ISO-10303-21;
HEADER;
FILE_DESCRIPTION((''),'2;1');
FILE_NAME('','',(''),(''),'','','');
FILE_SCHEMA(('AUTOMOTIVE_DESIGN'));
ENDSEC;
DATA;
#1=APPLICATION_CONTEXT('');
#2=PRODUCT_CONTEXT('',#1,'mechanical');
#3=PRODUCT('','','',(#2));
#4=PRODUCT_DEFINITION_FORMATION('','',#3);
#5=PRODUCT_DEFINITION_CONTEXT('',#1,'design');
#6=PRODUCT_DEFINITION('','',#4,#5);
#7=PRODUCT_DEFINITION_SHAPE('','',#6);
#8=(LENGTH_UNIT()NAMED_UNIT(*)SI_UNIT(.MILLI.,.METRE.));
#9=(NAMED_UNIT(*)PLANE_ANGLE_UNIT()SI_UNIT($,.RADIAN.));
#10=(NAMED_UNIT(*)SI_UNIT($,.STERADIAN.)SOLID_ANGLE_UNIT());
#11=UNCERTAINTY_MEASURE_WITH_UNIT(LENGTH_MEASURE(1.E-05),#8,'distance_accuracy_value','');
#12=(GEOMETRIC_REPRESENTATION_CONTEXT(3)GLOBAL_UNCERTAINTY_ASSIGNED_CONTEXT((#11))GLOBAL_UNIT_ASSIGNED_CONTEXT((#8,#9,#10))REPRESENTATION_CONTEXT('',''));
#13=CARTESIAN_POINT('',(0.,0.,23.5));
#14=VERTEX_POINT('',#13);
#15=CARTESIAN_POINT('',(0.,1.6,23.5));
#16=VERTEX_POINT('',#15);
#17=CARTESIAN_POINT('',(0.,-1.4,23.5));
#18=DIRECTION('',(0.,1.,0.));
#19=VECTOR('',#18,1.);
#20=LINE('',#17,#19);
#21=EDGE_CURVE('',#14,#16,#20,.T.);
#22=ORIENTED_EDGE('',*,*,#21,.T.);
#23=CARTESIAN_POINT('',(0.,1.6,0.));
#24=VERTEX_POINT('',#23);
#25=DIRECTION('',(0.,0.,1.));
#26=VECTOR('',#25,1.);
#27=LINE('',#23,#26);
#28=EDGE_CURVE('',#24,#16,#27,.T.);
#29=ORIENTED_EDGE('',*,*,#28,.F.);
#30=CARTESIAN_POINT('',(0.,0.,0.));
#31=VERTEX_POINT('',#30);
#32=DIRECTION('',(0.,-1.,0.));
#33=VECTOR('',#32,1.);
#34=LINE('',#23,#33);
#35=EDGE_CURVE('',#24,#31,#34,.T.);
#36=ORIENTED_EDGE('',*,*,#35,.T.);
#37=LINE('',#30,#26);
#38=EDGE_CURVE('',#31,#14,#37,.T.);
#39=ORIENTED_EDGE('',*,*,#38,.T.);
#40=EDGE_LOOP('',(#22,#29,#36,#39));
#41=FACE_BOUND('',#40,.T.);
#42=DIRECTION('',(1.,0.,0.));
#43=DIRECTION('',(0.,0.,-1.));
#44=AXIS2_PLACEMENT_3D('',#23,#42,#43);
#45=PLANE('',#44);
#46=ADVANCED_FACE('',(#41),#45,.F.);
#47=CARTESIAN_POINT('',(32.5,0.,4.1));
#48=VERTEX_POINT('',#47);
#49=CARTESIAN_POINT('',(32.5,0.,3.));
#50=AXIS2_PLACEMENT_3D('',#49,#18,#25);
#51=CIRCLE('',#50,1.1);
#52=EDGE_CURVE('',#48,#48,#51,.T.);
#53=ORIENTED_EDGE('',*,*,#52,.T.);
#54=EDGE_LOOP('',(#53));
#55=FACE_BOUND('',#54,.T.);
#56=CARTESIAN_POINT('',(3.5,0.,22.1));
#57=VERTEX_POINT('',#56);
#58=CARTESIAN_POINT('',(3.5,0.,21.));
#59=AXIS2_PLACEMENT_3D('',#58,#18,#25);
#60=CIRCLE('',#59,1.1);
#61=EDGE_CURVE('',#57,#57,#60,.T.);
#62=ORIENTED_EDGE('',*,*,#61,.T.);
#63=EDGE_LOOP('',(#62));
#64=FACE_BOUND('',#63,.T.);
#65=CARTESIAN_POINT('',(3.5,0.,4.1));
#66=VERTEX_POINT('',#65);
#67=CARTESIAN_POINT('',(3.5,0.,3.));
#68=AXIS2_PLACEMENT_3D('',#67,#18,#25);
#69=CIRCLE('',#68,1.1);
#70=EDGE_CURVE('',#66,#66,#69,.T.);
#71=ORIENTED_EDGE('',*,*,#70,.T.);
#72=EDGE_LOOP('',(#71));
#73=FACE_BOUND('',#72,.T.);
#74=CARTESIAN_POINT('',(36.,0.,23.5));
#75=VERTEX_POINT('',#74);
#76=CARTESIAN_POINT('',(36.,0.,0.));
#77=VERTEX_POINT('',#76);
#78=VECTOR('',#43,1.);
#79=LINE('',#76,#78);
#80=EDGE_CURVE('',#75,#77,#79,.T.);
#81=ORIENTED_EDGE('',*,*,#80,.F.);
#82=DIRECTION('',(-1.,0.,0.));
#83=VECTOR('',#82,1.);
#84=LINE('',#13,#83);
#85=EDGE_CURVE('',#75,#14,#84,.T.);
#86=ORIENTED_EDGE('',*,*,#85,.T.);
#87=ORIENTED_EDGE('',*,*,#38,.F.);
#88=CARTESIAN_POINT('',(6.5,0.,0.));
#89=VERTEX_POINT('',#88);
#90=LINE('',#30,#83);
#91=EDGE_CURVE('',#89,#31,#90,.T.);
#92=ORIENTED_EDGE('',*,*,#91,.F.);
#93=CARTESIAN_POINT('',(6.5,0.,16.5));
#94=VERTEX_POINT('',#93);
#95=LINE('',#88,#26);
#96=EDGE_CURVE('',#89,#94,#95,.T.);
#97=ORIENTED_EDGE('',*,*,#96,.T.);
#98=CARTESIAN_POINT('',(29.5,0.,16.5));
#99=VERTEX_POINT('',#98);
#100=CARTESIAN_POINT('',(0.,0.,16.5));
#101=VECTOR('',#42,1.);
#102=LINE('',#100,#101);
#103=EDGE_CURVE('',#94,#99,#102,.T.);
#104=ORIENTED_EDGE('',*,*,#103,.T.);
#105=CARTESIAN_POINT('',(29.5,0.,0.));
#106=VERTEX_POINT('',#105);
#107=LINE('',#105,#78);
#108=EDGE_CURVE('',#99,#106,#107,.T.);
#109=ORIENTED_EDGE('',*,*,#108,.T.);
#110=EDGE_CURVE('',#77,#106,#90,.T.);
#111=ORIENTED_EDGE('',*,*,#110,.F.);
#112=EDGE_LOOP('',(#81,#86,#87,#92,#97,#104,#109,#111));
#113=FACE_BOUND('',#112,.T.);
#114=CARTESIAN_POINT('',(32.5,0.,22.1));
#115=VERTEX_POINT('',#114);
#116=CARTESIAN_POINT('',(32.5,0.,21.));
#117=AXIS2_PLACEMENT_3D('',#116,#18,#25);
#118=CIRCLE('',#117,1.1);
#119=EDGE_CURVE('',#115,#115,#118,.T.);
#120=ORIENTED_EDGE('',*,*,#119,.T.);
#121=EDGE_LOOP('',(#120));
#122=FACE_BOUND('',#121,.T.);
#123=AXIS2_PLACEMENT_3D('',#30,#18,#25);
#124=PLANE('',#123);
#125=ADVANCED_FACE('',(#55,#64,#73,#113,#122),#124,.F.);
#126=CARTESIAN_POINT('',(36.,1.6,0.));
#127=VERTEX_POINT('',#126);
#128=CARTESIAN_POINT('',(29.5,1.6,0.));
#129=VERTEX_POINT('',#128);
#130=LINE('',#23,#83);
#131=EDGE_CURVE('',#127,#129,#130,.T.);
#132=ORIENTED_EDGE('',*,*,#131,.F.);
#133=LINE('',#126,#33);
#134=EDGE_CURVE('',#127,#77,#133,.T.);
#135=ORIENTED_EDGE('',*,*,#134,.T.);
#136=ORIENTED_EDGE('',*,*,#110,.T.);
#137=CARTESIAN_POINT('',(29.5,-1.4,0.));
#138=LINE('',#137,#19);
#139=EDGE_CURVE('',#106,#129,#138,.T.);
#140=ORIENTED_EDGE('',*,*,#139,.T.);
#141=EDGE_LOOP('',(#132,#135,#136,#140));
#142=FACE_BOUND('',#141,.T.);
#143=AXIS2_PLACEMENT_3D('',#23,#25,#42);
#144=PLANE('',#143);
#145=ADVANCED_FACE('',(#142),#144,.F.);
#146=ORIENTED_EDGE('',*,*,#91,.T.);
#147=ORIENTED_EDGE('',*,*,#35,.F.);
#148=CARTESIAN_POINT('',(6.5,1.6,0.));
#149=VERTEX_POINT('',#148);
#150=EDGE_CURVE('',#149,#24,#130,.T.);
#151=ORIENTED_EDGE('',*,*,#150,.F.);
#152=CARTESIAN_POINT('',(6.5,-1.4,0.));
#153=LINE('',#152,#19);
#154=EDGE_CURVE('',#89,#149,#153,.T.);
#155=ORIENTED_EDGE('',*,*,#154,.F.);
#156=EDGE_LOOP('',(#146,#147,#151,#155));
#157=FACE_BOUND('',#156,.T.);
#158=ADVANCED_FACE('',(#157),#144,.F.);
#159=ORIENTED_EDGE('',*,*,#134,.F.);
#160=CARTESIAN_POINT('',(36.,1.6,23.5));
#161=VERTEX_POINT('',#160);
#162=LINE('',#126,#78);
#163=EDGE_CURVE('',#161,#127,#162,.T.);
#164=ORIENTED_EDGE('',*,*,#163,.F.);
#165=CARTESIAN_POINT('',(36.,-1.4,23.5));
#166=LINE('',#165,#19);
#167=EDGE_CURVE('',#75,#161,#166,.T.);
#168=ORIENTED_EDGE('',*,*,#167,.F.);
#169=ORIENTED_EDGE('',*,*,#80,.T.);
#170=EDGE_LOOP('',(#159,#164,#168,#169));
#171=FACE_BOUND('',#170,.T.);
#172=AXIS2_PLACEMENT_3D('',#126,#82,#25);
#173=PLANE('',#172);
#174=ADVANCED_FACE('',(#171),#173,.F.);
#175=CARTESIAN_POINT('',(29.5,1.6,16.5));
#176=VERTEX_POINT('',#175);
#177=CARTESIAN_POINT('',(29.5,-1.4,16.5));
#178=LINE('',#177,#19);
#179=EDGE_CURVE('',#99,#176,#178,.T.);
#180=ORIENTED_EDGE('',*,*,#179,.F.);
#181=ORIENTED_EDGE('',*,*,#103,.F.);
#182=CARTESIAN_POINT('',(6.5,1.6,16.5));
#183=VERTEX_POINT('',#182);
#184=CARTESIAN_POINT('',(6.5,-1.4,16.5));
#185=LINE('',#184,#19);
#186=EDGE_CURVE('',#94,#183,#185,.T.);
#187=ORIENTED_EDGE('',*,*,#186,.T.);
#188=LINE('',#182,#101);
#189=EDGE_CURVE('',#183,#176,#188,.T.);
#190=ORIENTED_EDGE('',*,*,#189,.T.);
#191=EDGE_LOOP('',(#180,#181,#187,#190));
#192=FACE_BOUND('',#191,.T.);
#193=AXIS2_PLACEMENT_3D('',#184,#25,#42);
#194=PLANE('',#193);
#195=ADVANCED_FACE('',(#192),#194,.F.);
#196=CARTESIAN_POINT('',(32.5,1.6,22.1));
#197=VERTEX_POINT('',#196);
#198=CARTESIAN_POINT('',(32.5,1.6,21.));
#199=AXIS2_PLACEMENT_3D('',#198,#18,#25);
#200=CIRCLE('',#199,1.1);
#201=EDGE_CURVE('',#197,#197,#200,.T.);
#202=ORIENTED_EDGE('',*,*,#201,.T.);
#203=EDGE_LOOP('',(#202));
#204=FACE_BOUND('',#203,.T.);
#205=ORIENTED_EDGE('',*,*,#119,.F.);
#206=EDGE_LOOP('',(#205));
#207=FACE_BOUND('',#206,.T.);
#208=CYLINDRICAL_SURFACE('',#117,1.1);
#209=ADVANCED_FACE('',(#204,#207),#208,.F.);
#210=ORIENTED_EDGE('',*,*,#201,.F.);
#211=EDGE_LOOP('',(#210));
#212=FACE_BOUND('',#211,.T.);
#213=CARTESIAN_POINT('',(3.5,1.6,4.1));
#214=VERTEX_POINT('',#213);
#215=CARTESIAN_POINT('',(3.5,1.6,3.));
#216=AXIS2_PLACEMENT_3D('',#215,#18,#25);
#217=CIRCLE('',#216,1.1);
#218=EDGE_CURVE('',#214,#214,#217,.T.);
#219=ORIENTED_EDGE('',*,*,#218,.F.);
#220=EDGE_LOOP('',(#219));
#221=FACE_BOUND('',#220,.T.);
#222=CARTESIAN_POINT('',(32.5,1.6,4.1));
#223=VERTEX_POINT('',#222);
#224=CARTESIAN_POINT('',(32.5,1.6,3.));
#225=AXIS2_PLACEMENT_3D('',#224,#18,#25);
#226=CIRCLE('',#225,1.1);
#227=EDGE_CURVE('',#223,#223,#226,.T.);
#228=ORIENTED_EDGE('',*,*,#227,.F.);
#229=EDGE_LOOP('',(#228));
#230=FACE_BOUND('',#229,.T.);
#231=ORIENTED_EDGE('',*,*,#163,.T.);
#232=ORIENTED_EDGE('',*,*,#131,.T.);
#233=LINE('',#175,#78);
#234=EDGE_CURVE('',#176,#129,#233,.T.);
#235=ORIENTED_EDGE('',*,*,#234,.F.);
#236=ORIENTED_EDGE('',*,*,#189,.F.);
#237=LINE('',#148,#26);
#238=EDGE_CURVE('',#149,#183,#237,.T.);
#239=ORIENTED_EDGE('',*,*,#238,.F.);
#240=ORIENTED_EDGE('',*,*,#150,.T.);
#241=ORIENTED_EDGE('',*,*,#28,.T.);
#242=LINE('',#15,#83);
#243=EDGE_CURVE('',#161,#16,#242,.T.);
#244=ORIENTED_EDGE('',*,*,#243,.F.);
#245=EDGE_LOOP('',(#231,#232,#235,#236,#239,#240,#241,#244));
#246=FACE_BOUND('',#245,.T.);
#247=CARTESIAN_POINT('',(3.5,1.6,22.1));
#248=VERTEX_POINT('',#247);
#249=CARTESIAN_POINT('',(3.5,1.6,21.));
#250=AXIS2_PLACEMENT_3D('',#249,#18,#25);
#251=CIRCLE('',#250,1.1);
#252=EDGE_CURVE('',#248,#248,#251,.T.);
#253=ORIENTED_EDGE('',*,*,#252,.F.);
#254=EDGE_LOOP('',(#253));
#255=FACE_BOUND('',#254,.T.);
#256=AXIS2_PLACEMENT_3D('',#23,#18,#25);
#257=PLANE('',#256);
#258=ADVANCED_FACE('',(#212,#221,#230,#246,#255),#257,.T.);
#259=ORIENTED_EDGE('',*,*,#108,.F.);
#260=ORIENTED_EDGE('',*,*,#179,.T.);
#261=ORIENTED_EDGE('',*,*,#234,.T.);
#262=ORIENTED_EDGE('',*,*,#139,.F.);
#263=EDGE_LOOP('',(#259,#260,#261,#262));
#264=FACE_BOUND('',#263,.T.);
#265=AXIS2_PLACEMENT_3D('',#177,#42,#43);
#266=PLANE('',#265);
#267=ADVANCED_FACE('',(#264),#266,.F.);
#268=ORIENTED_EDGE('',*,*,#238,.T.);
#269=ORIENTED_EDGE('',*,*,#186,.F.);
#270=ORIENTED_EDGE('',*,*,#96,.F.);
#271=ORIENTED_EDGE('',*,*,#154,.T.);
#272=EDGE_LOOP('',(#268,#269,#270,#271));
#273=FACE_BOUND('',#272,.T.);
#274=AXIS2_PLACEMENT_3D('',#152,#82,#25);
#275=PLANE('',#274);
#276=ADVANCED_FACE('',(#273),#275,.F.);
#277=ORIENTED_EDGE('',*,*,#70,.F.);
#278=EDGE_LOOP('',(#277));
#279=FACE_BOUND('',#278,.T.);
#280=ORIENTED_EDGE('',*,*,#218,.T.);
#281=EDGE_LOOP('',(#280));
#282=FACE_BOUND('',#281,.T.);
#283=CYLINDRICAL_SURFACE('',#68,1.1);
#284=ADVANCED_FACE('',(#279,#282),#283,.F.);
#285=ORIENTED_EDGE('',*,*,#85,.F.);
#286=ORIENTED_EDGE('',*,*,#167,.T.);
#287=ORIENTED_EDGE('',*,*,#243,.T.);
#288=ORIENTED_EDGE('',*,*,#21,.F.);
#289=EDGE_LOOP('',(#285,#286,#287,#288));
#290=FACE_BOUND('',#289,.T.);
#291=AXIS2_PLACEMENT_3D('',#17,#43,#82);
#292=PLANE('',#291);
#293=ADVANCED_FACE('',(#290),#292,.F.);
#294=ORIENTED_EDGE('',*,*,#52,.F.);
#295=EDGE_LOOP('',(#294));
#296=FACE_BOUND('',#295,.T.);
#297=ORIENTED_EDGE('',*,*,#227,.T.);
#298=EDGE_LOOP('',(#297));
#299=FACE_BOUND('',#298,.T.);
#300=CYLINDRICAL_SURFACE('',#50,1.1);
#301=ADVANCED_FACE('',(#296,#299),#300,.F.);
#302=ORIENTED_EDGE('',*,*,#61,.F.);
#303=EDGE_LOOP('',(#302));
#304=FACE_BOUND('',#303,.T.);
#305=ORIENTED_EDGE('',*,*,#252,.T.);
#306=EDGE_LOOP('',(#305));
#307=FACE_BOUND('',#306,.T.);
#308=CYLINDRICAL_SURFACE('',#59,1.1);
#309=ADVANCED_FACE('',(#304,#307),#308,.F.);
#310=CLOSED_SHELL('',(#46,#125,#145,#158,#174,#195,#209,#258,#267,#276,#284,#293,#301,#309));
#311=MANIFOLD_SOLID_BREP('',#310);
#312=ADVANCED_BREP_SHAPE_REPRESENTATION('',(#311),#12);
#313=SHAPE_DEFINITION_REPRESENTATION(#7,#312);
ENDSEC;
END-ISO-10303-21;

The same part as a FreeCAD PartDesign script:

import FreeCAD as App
import Part
import Sketcher
Q = App.Units.Quantity

doc = App.newDocument("Part")
body = doc.addObject("PartDesign::Body", "Body")

sketch1 = body.newObject("Sketcher::SketchObject", "Sketch")
sketch1.AttachmentSupport = (doc.getObject("XZ_Plane"), [""])
sketch1.MapMode = "FlatFace"
sketch1.addGeometry(Part.LineSegment(App.Vector(0, 0, 0), App.Vector(0, 24, 0)), False)
sketch1.addGeometry(Part.LineSegment(App.Vector(0, 24, 0), App.Vector(36, 24, 0)), False)
sketch1.addGeometry(Part.LineSegment(App.Vector(36, 24, 0), App.Vector(36, 0, 0)), False)
sketch1.addGeometry(Part.LineSegment(App.Vector(36, 0, 0), App.Vector(0, 0, 0)), False)
sketch1.addConstraint(Sketcher.Constraint("Coincident", 0, 2, 1, 1))
sketch1.addConstraint(Sketcher.Constraint("Coincident", 1, 2, 2, 1))
sketch1.addConstraint(Sketcher.Constraint("Coincident", 2, 2, 3, 1))
sketch1.addConstraint(Sketcher.Constraint("Coincident", 3, 2, 0, 1))
sketch1.addConstraint(Sketcher.Constraint("Vertical", 0))
sketch1.addConstraint(Sketcher.Constraint("Horizontal", 1))
sketch1.addConstraint(Sketcher.Constraint("Vertical", 2))
sketch1.addConstraint(Sketcher.Constraint("Horizontal", 3))
sketch1.addConstraint(Sketcher.Constraint("Coincident", 3, 2, -1, 1))
sketch1.addConstraint(Sketcher.Constraint("DistanceX", 1, 1, 1, 2, Q("36 mm")))
sketch1.addConstraint(Sketcher.Constraint("DistanceY", 0, 1, 0, 2, Q("24 mm")))
pad1 = body.newObject("PartDesign::Pad", "Pad")
pad1.Profile = sketch1
pad1.Length = 1.6
pad1.Reversed = True

sketch2 = body.newObject("Sketcher::SketchObject", "Sketch001")
sketch2.AttachmentSupport = (doc.getObject("XZ_Plane"), [""])
sketch2.MapMode = "FlatFace"
sketch2.AttachmentOffset = App.Placement(App.Vector(0, 0, -1.6), App.Rotation())
sketch2.addGeometry(Part.LineSegment(App.Vector(7, 0, 0), App.Vector(7, 16, 0)), False)
sketch2.addGeometry(Part.LineSegment(App.Vector(7, 16, 0), App.Vector(29, 16, 0)), False)
sketch2.addGeometry(Part.LineSegment(App.Vector(29, 16, 0), App.Vector(29, 0, 0)), False)
sketch2.addGeometry(Part.LineSegment(App.Vector(29, 0, 0), App.Vector(7, 0, 0)), False)
sketch2.addConstraint(Sketcher.Constraint("Coincident", 0, 2, 1, 1))
sketch2.addConstraint(Sketcher.Constraint("Coincident", 1, 2, 2, 1))
sketch2.addConstraint(Sketcher.Constraint("Coincident", 2, 2, 3, 1))
sketch2.addConstraint(Sketcher.Constraint("Coincident", 3, 2, 0, 1))
sketch2.addConstraint(Sketcher.Constraint("Vertical", 0))
sketch2.addConstraint(Sketcher.Constraint("Horizontal", 1))
sketch2.addConstraint(Sketcher.Constraint("Vertical", 2))
sketch2.addConstraint(Sketcher.Constraint("Horizontal", 3))
sketch2.addConstraint(Sketcher.Constraint("PointOnObject", 2, 2, -1))
sketch2.addConstraint(Sketcher.Constraint("DistanceX", 1, 1, 1, 2, Q("22 mm")))
sketch2.addConstraint(Sketcher.Constraint("DistanceY", 0, 1, 0, 2, Q("16 mm")))
sketch2.addConstraint(Sketcher.Constraint("DistanceX", -1, 1, 0, 2, Q("7 mm")))
pocket1 = body.newObject("PartDesign::Pocket", "Pocket")
pocket1.Profile = sketch2
pocket1.Length = 1.6
pocket1.Reversed = True

sketch3 = body.newObject("Sketcher::SketchObject", "Sketch002")
sketch3.AttachmentSupport = (doc.getObject("XZ_Plane"), [""])
sketch3.MapMode = "FlatFace"
sketch3.AttachmentOffset = App.Placement(App.Vector(0, 0, -1.6), App.Rotation())
sketch3.addGeometry(Part.Circle(App.Vector(3.5, 3, 0), App.Vector(0, 0, 1), 1.1), False)
sketch3.addGeometry(Part.Circle(App.Vector(32.5, 3, 0), App.Vector(0, 0, 1), 1.1), False)
sketch3.addGeometry(Part.Circle(App.Vector(3.5, 21, 0), App.Vector(0, 0, 1), 1.1), False)
sketch3.addGeometry(Part.Circle(App.Vector(32.5, 21, 0), App.Vector(0, 0, 1), 1.1), False)
sketch3.addConstraint(Sketcher.Constraint("Equal", 0, 1))
sketch3.addConstraint(Sketcher.Constraint("Equal", 1, 2))
sketch3.addConstraint(Sketcher.Constraint("Equal", 2, 3))
sketch3.addConstraint(Sketcher.Constraint("Horizontal", 0, 3, 1, 3))
sketch3.addConstraint(Sketcher.Constraint("Horizontal", 2, 3, 3, 3))
sketch3.addConstraint(Sketcher.Constraint("Vertical", 0, 3, 2, 3))
sketch3.addConstraint(Sketcher.Constraint("Vertical", 1, 3, 3, 3))
sketch3.addConstraint(Sketcher.Constraint("Diameter", 0, Q("2.2 mm")))
sketch3.addConstraint(Sketcher.Constraint("DistanceY", -1, 1, 0, 3, Q("3 mm")))
sketch3.addConstraint(Sketcher.Constraint("DistanceY", -1, 1, 2, 3, Q("21 mm")))
sketch3.addConstraint(Sketcher.Constraint("DistanceX", 0, 3, 1, 3, Q("29 mm")))
sketch3.addConstraint(Sketcher.Constraint("DistanceX", -1, 1, 0, 3, Q("3.5 mm")))
pocket2 = body.newObject("PartDesign::Pocket", "Pocket001")
pocket2.Profile = sketch3
pocket2.Length = 1.6
pocket2.Reversed = True

sketch4 = body.newObject("Sketcher::SketchObject", "Sketch003")
sketch4.AttachmentSupport = (doc.getObject("XZ_Plane"), [""])
sketch4.MapMode = "FlatFace"
sketch4.AttachmentOffset = App.Placement(App.Vector(0, 0, -1.6), App.Rotation())
sketch4.addGeometry(Part.LineSegment(App.Vector(7, 0, 0), App.Vector(6.5, 0, 0)), False)
sketch4.addGeometry(Part.LineSegment(App.Vector(6.5, 0, 0), App.Vector(6.5, 16.5, 0)), False)
sketch4.addGeometry(Part.LineSegment(App.Vector(6.5, 16.5, 0), App.Vector(29.5, 16.5, 0)), False)
sketch4.addGeometry(Part.LineSegment(App.Vector(29.5, 16.5, 0), App.Vector(29.5, 0, 0)), False)
sketch4.addGeometry(Part.LineSegment(App.Vector(29.5, 0, 0), App.Vector(29, 0, 0)), False)
sketch4.addGeometry(Part.LineSegment(App.Vector(29, 0, 0), App.Vector(29, 16, 0)), False)
sketch4.addGeometry(Part.LineSegment(App.Vector(29, 16, 0), App.Vector(7, 16, 0)), False)
sketch4.addGeometry(Part.LineSegment(App.Vector(7, 16, 0), App.Vector(7, 0, 0)), False)
sketch4.addConstraint(Sketcher.Constraint("Coincident", 0, 2, 1, 1))
sketch4.addConstraint(Sketcher.Constraint("Coincident", 1, 2, 2, 1))
sketch4.addConstraint(Sketcher.Constraint("Coincident", 2, 2, 3, 1))
sketch4.addConstraint(Sketcher.Constraint("Coincident", 3, 2, 4, 1))
sketch4.addConstraint(Sketcher.Constraint("Coincident", 4, 2, 5, 1))
sketch4.addConstraint(Sketcher.Constraint("Coincident", 5, 2, 6, 1))
sketch4.addConstraint(Sketcher.Constraint("Coincident", 6, 2, 7, 1))
sketch4.addConstraint(Sketcher.Constraint("Coincident", 7, 2, 0, 1))
sketch4.addConstraint(Sketcher.Constraint("Horizontal", 0))
sketch4.addConstraint(Sketcher.Constraint("Vertical", 1))
sketch4.addConstraint(Sketcher.Constraint("Horizontal", 2))
sketch4.addConstraint(Sketcher.Constraint("Vertical", 3))
sketch4.addConstraint(Sketcher.Constraint("Horizontal", 4))
sketch4.addConstraint(Sketcher.Constraint("Vertical", 5))
sketch4.addConstraint(Sketcher.Constraint("Horizontal", 6))
sketch4.addConstraint(Sketcher.Constraint("Vertical", 7))
sketch4.addConstraint(Sketcher.Constraint("PointOnObject", 0, 2, -1))
sketch4.addConstraint(Sketcher.Constraint("PointOnObject", 3, 2, -1))
sketch4.addConstraint(Sketcher.Constraint("Equal", 0, 4))
sketch4.addConstraint(Sketcher.Constraint("DistanceX", 2, 1, 2, 2, Q("23 mm")))
sketch4.addConstraint(Sketcher.Constraint("DistanceX", 6, 2, 6, 1, Q("22 mm")))
sketch4.addConstraint(Sketcher.Constraint("DistanceY", 5, 1, 5, 2, Q("16 mm")))
sketch4.addConstraint(Sketcher.Constraint("DistanceY", 1, 1, 1, 2, Q("16.5 mm")))
sketch4.addConstraint(Sketcher.Constraint("DistanceX", -1, 1, 4, 2, Q("29 mm")))
pocket3 = body.newObject("PartDesign::Pocket", "Pocket002")
pocket3.Profile = sketch4
pocket3.Length = 3
pocket3.Reversed = True

sketch5 = body.newObject("Sketcher::SketchObject", "Sketch004")
sketch5.AttachmentSupport = (doc.getObject("XZ_Plane"), [""])
sketch5.MapMode = "FlatFace"
sketch5.AttachmentOffset = App.Placement(App.Vector(0, 0, -1.6), App.Rotation())
sketch5.addGeometry(Part.LineSegment(App.Vector(0, 23.5, 0), App.Vector(0, 24, 0)), False)
sketch5.addGeometry(Part.LineSegment(App.Vector(0, 24, 0), App.Vector(36, 24, 0)), False)
sketch5.addGeometry(Part.LineSegment(App.Vector(36, 24, 0), App.Vector(36, 23.5, 0)), False)
sketch5.addGeometry(Part.LineSegment(App.Vector(36, 23.5, 0), App.Vector(0, 23.5, 0)), False)
sketch5.addConstraint(Sketcher.Constraint("Coincident", 0, 2, 1, 1))
sketch5.addConstraint(Sketcher.Constraint("Coincident", 1, 2, 2, 1))
sketch5.addConstraint(Sketcher.Constraint("Coincident", 2, 2, 3, 1))
sketch5.addConstraint(Sketcher.Constraint("Coincident", 3, 2, 0, 1))
sketch5.addConstraint(Sketcher.Constraint("Vertical", 0))
sketch5.addConstraint(Sketcher.Constraint("Horizontal", 1))
sketch5.addConstraint(Sketcher.Constraint("Vertical", 2))
sketch5.addConstraint(Sketcher.Constraint("Horizontal", 3))
sketch5.addConstraint(Sketcher.Constraint("PointOnObject", 0, 2, -2))
sketch5.addConstraint(Sketcher.Constraint("DistanceX", 1, 1, 1, 2, Q("36 mm")))
sketch5.addConstraint(Sketcher.Constraint("DistanceY", 0, 1, 0, 2, Q("0.5 mm")))
sketch5.addConstraint(Sketcher.Constraint("DistanceY", -1, 1, 0, 2, Q("24 mm")))
pocket4 = body.newObject("PartDesign::Pocket", "Pocket003")
pocket4.Profile = sketch5
pocket4.Length = 3
pocket4.Reversed = True

doc.recompute()
